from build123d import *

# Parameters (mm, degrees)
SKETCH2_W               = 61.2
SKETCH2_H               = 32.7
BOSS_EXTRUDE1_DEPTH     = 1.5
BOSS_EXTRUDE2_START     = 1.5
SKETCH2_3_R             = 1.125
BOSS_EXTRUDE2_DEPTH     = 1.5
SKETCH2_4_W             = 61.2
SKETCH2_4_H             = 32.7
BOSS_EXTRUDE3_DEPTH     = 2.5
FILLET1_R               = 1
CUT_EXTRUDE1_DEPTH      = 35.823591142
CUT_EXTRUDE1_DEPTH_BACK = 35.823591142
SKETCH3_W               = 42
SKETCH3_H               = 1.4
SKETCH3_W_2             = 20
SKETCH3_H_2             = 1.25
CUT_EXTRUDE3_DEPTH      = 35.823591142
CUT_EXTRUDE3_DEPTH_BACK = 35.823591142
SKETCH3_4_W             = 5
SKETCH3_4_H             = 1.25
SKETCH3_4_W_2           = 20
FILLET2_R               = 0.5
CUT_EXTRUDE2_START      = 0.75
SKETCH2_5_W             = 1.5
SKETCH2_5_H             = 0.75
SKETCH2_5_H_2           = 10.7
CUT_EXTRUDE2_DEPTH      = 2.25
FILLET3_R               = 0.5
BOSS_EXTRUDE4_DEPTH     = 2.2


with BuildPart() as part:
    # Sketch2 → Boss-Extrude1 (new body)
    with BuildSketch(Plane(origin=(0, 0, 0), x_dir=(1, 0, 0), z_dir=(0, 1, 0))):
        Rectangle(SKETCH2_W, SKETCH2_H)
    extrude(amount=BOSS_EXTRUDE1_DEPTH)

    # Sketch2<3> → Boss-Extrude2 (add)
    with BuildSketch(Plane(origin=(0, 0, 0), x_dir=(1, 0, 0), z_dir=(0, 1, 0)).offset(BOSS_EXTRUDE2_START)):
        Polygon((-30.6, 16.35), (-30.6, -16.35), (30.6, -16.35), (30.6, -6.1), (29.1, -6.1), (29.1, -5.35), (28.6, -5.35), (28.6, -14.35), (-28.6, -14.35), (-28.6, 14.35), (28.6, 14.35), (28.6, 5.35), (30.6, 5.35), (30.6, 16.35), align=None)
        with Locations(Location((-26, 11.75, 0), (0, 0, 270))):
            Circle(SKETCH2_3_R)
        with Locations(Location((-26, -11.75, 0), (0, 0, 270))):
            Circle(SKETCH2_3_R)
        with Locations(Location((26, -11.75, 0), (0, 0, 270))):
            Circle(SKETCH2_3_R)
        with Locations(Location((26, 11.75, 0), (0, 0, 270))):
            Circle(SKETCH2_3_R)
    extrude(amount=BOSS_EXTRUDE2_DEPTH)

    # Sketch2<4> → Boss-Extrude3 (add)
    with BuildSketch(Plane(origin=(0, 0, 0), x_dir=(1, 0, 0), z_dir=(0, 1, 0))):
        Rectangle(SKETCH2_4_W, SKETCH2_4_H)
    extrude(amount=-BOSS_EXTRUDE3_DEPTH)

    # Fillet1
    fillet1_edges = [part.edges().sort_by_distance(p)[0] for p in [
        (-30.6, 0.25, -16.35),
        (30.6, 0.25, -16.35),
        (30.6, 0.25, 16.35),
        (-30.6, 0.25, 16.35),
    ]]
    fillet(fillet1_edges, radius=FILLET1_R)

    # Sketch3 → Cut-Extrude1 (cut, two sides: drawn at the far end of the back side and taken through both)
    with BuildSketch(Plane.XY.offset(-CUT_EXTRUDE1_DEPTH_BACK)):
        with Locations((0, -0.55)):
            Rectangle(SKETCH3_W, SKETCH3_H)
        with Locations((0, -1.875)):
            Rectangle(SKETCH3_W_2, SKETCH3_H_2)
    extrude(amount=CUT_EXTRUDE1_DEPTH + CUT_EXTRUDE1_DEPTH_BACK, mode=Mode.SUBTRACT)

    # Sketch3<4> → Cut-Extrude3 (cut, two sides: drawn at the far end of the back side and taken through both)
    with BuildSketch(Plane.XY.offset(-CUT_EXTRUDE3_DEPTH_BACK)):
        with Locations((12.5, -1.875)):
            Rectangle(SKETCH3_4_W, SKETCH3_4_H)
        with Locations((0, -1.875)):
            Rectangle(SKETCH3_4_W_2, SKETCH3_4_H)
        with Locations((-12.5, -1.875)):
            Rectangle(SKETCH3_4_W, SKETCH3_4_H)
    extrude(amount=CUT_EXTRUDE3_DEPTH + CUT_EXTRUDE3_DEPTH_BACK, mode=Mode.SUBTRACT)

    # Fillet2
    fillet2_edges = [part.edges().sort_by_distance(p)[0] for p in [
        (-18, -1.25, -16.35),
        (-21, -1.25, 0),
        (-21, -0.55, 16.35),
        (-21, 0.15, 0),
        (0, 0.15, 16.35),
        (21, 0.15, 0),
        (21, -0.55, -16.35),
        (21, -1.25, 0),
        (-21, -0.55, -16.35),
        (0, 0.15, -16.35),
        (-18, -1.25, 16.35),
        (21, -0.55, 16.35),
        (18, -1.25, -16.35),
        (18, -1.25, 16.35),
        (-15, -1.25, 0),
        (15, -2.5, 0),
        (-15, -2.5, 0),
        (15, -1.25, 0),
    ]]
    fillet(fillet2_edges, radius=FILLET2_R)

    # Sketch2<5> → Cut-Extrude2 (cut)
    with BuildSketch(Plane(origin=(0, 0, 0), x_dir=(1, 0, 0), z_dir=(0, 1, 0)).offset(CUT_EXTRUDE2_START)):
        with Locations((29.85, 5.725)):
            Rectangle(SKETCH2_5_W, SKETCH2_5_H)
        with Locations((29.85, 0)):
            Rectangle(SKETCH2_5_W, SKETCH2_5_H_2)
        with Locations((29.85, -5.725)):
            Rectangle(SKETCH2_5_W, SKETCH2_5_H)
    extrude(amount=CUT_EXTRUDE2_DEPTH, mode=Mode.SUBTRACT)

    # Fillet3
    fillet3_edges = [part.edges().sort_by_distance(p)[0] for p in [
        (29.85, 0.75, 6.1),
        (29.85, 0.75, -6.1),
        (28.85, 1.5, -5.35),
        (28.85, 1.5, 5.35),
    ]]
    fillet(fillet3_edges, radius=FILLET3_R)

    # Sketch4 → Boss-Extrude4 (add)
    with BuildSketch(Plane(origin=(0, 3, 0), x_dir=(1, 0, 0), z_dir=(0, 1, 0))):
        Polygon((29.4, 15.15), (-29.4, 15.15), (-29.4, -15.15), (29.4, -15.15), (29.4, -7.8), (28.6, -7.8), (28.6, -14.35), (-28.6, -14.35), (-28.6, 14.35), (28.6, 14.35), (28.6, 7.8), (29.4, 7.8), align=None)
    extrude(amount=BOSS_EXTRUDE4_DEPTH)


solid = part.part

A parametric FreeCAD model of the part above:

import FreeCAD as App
import Part
import Sketcher


def edges_at(feature, points):
    """Names of the edges that pass closest to the given points."""
    edges = feature.Shape.Edges
    near = lambda p: min(range(len(edges)), key=lambda i: edges[i].distToShape(Part.Vertex(*p))[0])
    return sorted({f"Edge{near(p) + 1}" for p in points})

doc = App.newDocument("Part")
body = doc.addObject("PartDesign::Body", "Body")

sketch1 = body.newObject("Sketcher::SketchObject", "Sketch")
sketch1.AttachmentSupport = (doc.getObject("XZ_Plane"), [""])
sketch1.MapMode = "FlatFace"
sketch1.addGeometry(Part.LineSegment(App.Vector(-31, -16, 0), App.Vector(-31, 16, 0)), False)
sketch1.addGeometry(Part.LineSegment(App.Vector(-31, 16, 0), App.Vector(31, 16, 0)), False)
sketch1.addGeometry(Part.LineSegment(App.Vector(31, 16, 0), App.Vector(31, -16, 0)), False)
sketch1.addGeometry(Part.LineSegment(App.Vector(31, -16, 0), App.Vector(-31, -16, 0)), False)
sketch1.addConstraint(Sketcher.Constraint("Coincident", 0, 2, 1, 1))
sketch1.addConstraint(Sketcher.Constraint("Coincident", 1, 2, 2, 1))
sketch1.addConstraint(Sketcher.Constraint("Coincident", 2, 2, 3, 1))
sketch1.addConstraint(Sketcher.Constraint("Coincident", 3, 2, 0, 1))
sketch1.addConstraint(Sketcher.Constraint("Vertical", 0))
sketch1.addConstraint(Sketcher.Constraint("Horizontal", 1))
sketch1.addConstraint(Sketcher.Constraint("Vertical", 2))
sketch1.addConstraint(Sketcher.Constraint("Horizontal", 3))
sketch1.addConstraint(Sketcher.Constraint("Symmetric", 0, 2, 2, 2, -1, 1))
sketch1.addConstraint(Sketcher.Constraint("DistanceX", 1, 1, 1, 2, 61.2))
sketch1.addConstraint(Sketcher.Constraint("DistanceY", 0, 1, 0, 2, 32.7))
pad1 = body.newObject("PartDesign::Pad", "Pad")
pad1.Profile = sketch1
pad1.Length = 1.5
pad1.Reversed = True

sketch2 = body.newObject("Sketcher::SketchObject", "Sketch001")
sketch2.AttachmentSupport = (doc.getObject("XZ_Plane"), [""])
sketch2.MapMode = "FlatFace"
sketch2.AttachmentOffset = App.Placement(App.Vector(0, 0, -1.5), App.Rotation())
sketch2.addGeometry(Part.LineSegment(App.Vector(-30.6, -16.4, 0), App.Vector(-30.6, 16.4, 0)), False)
sketch2.addGeometry(Part.LineSegment(App.Vector(-30.6, 16.4, 0), App.Vector(30.6, 16.4, 0)), False)
sketch2.addGeometry(Part.LineSegment(App.Vector(30.6, 16.4, 0), App.Vector(30.6, 6.1, 0)), False)
sketch2.addGeometry(Part.LineSegment(App.Vector(30.6, 6.1, 0), App.Vector(29.1, 6.1, 0)), False)
sketch2.addGeometry(Part.LineSegment(App.Vector(29.1, 6.1, 0), App.Vector(29.1, 5.3, 0)), False)
sketch2.addGeometry(Part.LineSegment(App.Vector(29.1, 5.3, 0), App.Vector(28.6, 5.3, 0)), False)
sketch2.addGeometry(Part.LineSegment(App.Vector(28.6, 5.3, 0), App.Vector(28.6, 14.3, 0)), False)
sketch2.addGeometry(Part.LineSegment(App.Vector(28.6, 14.3, 0), App.Vector(-28.6, 14.3, 0)), False)
sketch2.addGeometry(Part.LineSegment(App.Vector(-28.6, 14.3, 0), App.Vector(-28.6, -14.3, 0)), False)
sketch2.addGeometry(Part.LineSegment(App.Vector(-28.6, -14.3, 0), App.Vector(28.6, -14.3, 0)), False)
sketch2.addGeometry(Part.LineSegment(App.Vector(28.6, -14.3, 0), App.Vector(28.6, -5.3, 0)), False)
sketch2.addGeometry(Part.LineSegment(App.Vector(28.6, -5.3, 0), App.Vector(30.6, -5.3, 0)), False)
sketch2.addGeometry(Part.LineSegment(App.Vector(30.6, -5.3, 0), App.Vector(30.6, -16.4, 0)), False)
sketch2.addGeometry(Part.LineSegment(App.Vector(30.6, -16.4, 0), App.Vector(-30.6, -16.4, 0)), False)
sketch2.addGeometry(Part.Circle(App.Vector(-26, -11.8, 0), App.Vector(0, 0, 1), 1.1), False)
sketch2.addGeometry(Part.Circle(App.Vector(-26, 11.8, 0), App.Vector(0, 0, 1), 1.1), False)
sketch2.addGeometry(Part.Circle(App.Vector(26, 11.8, 0), App.Vector(0, 0, 1), 1.1), False)
sketch2.addGeometry(Part.Circle(App.Vector(26, -11.8, 0), App.Vector(0, 0, 1), 1.1), False)
sketch2.addConstraint(Sketcher.Constraint("Coincident", 0, 2, 1, 1))
sketch2.addConstraint(Sketcher.Constraint("Coincident", 1, 2, 2, 1))
sketch2.addConstraint(Sketcher.Constraint("Coincident", 2, 2, 3, 1))
sketch2.addConstraint(Sketcher.Constraint("Coincident", 3, 2, 4, 1))
sketch2.addConstraint(Sketcher.Constraint("Coincident", 4, 2, 5, 1))
sketch2.addConstraint(Sketcher.Constraint("Coincident", 5, 2, 6, 1))
sketch2.addConstraint(Sketcher.Constraint("Coincident", 6, 2, 7, 1))
sketch2.addConstraint(Sketcher.Constraint("Coincident", 7, 2, 8, 1))
sketch2.addConstraint(Sketcher.Constraint("Coincident", 8, 2, 9, 1))
sketch2.addConstraint(Sketcher.Constraint("Coincident", 9, 2, 10, 1))
sketch2.addConstraint(Sketcher.Constraint("Coincident", 10, 2, 11, 1))
sketch2.addConstraint(Sketcher.Constraint("Coincident", 11, 2, 12, 1))
sketch2.addConstraint(Sketcher.Constraint("Coincident", 12, 2, 13, 1))
sketch2.addConstraint(Sketcher.Constraint("Coincident", 13, 2, 0, 1))
sketch2.addConstraint(Sketcher.Constraint("Vertical", 0))
sketch2.addConstraint(Sketcher.Constraint("Horizontal", 1))
sketch2.addConstraint(Sketcher.Constraint("Vertical", 2))
sketch2.addConstraint(Sketcher.Constraint("Horizontal", 3))
sketch2.addConstraint(Sketcher.Constraint("Vertical", 4))
sketch2.addConstraint(Sketcher.Constraint("Horizontal", 5))
sketch2.addConstraint(Sketcher.Constraint("Vertical", 6))
sketch2.addConstraint(Sketcher.Constraint("Horizontal", 7))
sketch2.addConstraint(Sketcher.Constraint("Vertical", 8))
sketch2.addConstraint(Sketcher.Constraint("Horizontal", 9))
sketch2.addConstraint(Sketcher.Constraint("Vertical", 10))
sketch2.addConstraint(Sketcher.Constraint("Horizontal", 11))
sketch2.addConstraint(Sketcher.Constraint("Vertical", 12))
sketch2.addConstraint(Sketcher.Constraint("Horizontal", 13))
sketch2.addConstraint(Sketcher.Constraint("Equal", 14, 15))
sketch2.addConstraint(Sketcher.Constraint("Equal", 15, 16))
sketch2.addConstraint(Sketcher.Constraint("Equal", 16, 17))
sketch2.addConstraint(Sketcher.Constraint("Symmetric", 14, 3, 16, 3, -1, 1))
sketch2.addConstraint(Sketcher.Constraint("Symmetric", 15, 3, 17, 3, -1, 1))
sketch2.addConstraint(Sketcher.Constraint("Symmetric", 6, 2, 8, 2, -1, 1))
sketch2.addConstraint(Sketcher.Constraint("Symmetric", 0, 2, 12, 2, -1, 1))
sketch2.addConstraint(Sketcher.Constraint("Symmetric", 15, 3, 16, 3, -2))
sketch2.addConstraint(Sketcher.Constraint("Symmetric", 5, 2, 10, 2, -1))
sketch2.addConstraint(Sketcher.Constraint("Vertical", 2, 2, 11, 2))
sketch2.addConstraint(Sketcher.Constraint("Diameter", 14, 2.25))
sketch2.addConstraint(Sketcher.Constraint("DistanceX", 11, 1, 11, 2, 2.0))
sketch2.addConstraint(Sketcher.Constraint("DistanceY", 6, 1, 6, 2, 9.0))
sketch2.addConstraint(Sketcher.Constraint("DistanceY", 12, 2, 12, 1, 11.0))
sketch2.addConstraint(Sketcher.Constraint("DistanceX", 1, 1, 1, 2, 61.2))
sketch2.addConstraint(Sketcher.Constraint("DistanceX", 3, 2, 3, 1, 1.5))
sketch2.addConstraint(Sketcher.Constraint("DistanceY", 0, 1, 0, 2, 32.7))
sketch2.addConstraint(Sketcher.Constraint("DistanceX", 14, 3, -1, 1, 26.0))
sketch2.addConstraint(Sketcher.Constraint("DistanceY", 2, 2, 2, 1, 10.25))
sketch2.addConstraint(Sketcher.Constraint("DistanceY", 14, 3, 15, 3, 23.5))
pad2 = body.newObject("PartDesign::Pad", "Pad001")
pad2.Profile = sketch2
pad2.Length = 1.5
pad2.Reversed = True

sketch3 = body.newObject("Sketcher::SketchObject", "Sketch002")
sketch3.AttachmentSupport = (doc.getObject("XZ_Plane"), [""])
sketch3.MapMode = "FlatFace"
sketch3.addGeometry(Part.LineSegment(App.Vector(-31, -16, 0), App.Vector(-31, 16, 0)), False)
sketch3.addGeometry(Part.LineSegment(App.Vector(-31, 16, 0), App.Vector(31, 16, 0)), False)
sketch3.addGeometry(Part.LineSegment(App.Vector(31, 16, 0), App.Vector(31, -16, 0)), False)
sketch3.addGeometry(Part.LineSegment(App.Vector(31, -16, 0), App.Vector(-31, -16, 0)), False)
sketch3.addConstraint(Sketcher.Constraint("Coincident", 0, 2, 1, 1))
sketch3.addConstraint(Sketcher.Constraint("Coincident", 1, 2, 2, 1))
sketch3.addConstraint(Sketcher.Constraint("Coincident", 2, 2, 3, 1))
sketch3.addConstraint(Sketcher.Constraint("Coincident", 3, 2, 0, 1))
sketch3.addConstraint(Sketcher.Constraint("Vertical", 0))
sketch3.addConstraint(Sketcher.Constraint("Horizontal", 1))
sketch3.addConstraint(Sketcher.Constraint("Vertical", 2))
sketch3.addConstraint(Sketcher.Constraint("Horizontal", 3))
sketch3.addConstraint(Sketcher.Constraint("Symmetric", 0, 2, 2, 2, -1, 1))
sketch3.addConstraint(Sketcher.Constraint("DistanceX", 1, 1, 1, 2, 61.2))
sketch3.addConstraint(Sketcher.Constraint("DistanceY", 0, 1, 0, 2, 32.7))
pad3 = body.newObject("PartDesign::Pad", "Pad002")
pad3.Profile = sketch3
pad3.Length = 2.5
doc.recompute()

fillet = body.newObject("PartDesign::Fillet", "Fillet")
fillet.Base = (pad3, edges_at(pad3, [
    (-30.6, 0.25, -16.35),
    (30.6, 0.25, -16.35),
    (30.6, 0.25, 16.35),
    (-30.6, 0.25, 16.35),
]))
fillet.Radius = 1

sketch4 = body.newObject("Sketcher::SketchObject", "Sketch003")
sketch4.AttachmentSupport = (doc.getObject("XY_Plane"), [""])
sketch4.MapMode = "FlatFace"
sketch4.addGeometry(Part.LineSegment(App.Vector(-21, 0.1, 0), App.Vector(-21, -1.2, 0)), False)
sketch4.addGeometry(Part.LineSegment(App.Vector(-21, -1.2, 0), App.Vector(-10, -1.2, 0)), False)
sketch4.addGeometry(Part.LineSegment(App.Vector(-10, -1.2, 0), App.Vector(-10, -2.5, 0)), False)
sketch4.addGeometry(Part.LineSegment(App.Vector(-10, -2.5, 0), App.Vector(10, -2.5, 0)), False)
sketch4.addGeometry(Part.LineSegment(App.Vector(10, -2.5, 0), App.Vector(10, -1.2, 0)), False)
sketch4.addGeometry(Part.LineSegment(App.Vector(10, -1.2, 0), App.Vector(21, -1.2, 0)), False)
sketch4.addGeometry(Part.LineSegment(App.Vector(21, -1.2, 0), App.Vector(21, 0.1, 0)), False)
sketch4.addGeometry(Part.LineSegment(App.Vector(21, 0.1, 0), App.Vector(-21, 0.1, 0)), False)
sketch4.addConstraint(Sketcher.Constraint("Coincident", 0, 2, 1, 1))
sketch4.addConstraint(Sketcher.Constraint("Coincident", 1, 2, 2, 1))
sketch4.addConstraint(Sketcher.Constraint("Coincident", 2, 2, 3, 1))
sketch4.addConstraint(Sketcher.Constraint("Coincident", 3, 2, 4, 1))
sketch4.addConstraint(Sketcher.Constraint("Coincident", 4, 2, 5, 1))
sketch4.addConstraint(Sketcher.Constraint("Coincident", 5, 2, 6, 1))
sketch4.addConstraint(Sketcher.Constraint("Coincident", 6, 2, 7, 1))
sketch4.addConstraint(Sketcher.Constraint("Coincident", 7, 2, 0, 1))
sketch4.addConstraint(Sketcher.Constraint("Vertical", 0))
sketch4.addConstraint(Sketcher.Constraint("Horizontal", 1))
sketch4.addConstraint(Sketcher.Constraint("Vertical", 2))
sketch4.addConstraint(Sketcher.Constraint("Horizontal", 3))
sketch4.addConstraint(Sketcher.Constraint("Vertical", 4))
sketch4.addConstraint(Sketcher.Constraint("Horizontal", 5))
sketch4.addConstraint(Sketcher.Constraint("Vertical", 6))
sketch4.addConstraint(Sketcher.Constraint("Horizontal", 7))
sketch4.addConstraint(Sketcher.Constraint("Symmetric", 1, 2, 4, 2, -2))
sketch4.addConstraint(Sketcher.Constraint("Equal", 1, 5))
sketch4.addConstraint(Sketcher.Constraint("DistanceX", 1, 1, 1, 2, 11.0))
sketch4.addConstraint(Sketcher.Constraint("DistanceX", 3, 1, 3, 2, 20.0))
sketch4.addConstraint(Sketcher.Constraint("DistanceY", 0, 2, 0, 1, 1.4))
sketch4.addConstraint(Sketcher.Constraint("DistanceY", 2, 2, 2, 1, 1.25))
sketch4.addConstraint(Sketcher.Constraint("DistanceY", 2, 2, -1, 1, 2.5))
pocket1 = body.newObject("PartDesign::Pocket", "Pocket")
pocket1.Profile = sketch4
pocket1.Type = "ThroughAll"
pocket1.Midplane = True

sketch5 = body.newObject("Sketcher::SketchObject", "Sketch004")
sketch5.AttachmentSupport = (doc.getObject("XY_Plane"), [""])
sketch5.MapMode = "FlatFace"
sketch5.addGeometry(Part.LineSegment(App.Vector(15, -2.5, 0), App.Vector(15, -1.2, 0)), False)
sketch5.addGeometry(Part.LineSegment(App.Vector(15, -1.2, 0), App.Vector(-15, -1.2, 0)), False)
sketch5.addGeometry(Part.LineSegment(App.Vector(-15, -1.2, 0), App.Vector(-15, -2.5, 0)), False)
sketch5.addGeometry(Part.LineSegment(App.Vector(-15, -2.5, 0), App.Vector(15, -2.5, 0)), False)
sketch5.addConstraint(Sketcher.Constraint("Coincident", 0, 2, 1, 1))
sketch5.addConstraint(Sketcher.Constraint("Coincident", 1, 2, 2, 1))
sketch5.addConstraint(Sketcher.Constraint("Coincident", 2, 2, 3, 1))
sketch5.addConstraint(Sketcher.Constraint("Coincident", 3, 2, 0, 1))
sketch5.addConstraint(Sketcher.Constraint("Vertical", 0))
sketch5.addConstraint(Sketcher.Constraint("Horizontal", 1))
sketch5.addConstraint(Sketcher.Constraint("Vertical", 2))
sketch5.addConstraint(Sketcher.Constraint("Horizontal", 3))
sketch5.addConstraint(Sketcher.Constraint("DistanceX", 1, 2, 1, 1, 30.0))
sketch5.addConstraint(Sketcher.Constraint("DistanceX", -1, 1, 0, 2, 15.0))
sketch5.addConstraint(Sketcher.Constraint("DistanceY", 0, 1, 0, 2, 1.25))
sketch5.addConstraint(Sketcher.Constraint("DistanceY", 2, 2, -1, 1, 2.5))
pocket2 = body.newObject("PartDesign::Pocket", "Pocket001")
pocket2.Profile = sketch5
pocket2.Type = "ThroughAll"
pocket2.Midplane = True
doc.recompute()

fillet2 = body.newObject("PartDesign::Fillet", "Fillet001")
fillet2.Base = (pocket2, edges_at(pocket2, [
    (-18, -1.25, -16.35),
    (-21, -1.25, 0),
    (-21, -0.55, 16.35),
    (-21, 0.15, 0),
    (0, 0.15, 16.35),
    (21, 0.15, 0),
    (21, -0.55, -16.35),
    (21, -1.25, 0),
    (-21, -0.55, -16.35),
    (0, 0.15, -16.35),
    (-18, -1.25, 16.35),
    (21, -0.55, 16.35),
    (18, -1.25, -16.35),
    (18, -1.25, 16.35),
    (-15, -1.25, 0),
    (15, -2.5, 0),
    (-15, -2.5, 0),
    (15, -1.25, 0),
]))
fillet2.Radius = 0.5

sketch6 = body.newObject("Sketcher::SketchObject", "Sketch005")
sketch6.AttachmentSupport = (doc.getObject("XZ_Plane"), [""])
sketch6.MapMode = "FlatFace"
sketch6.AttachmentOffset = App.Placement(App.Vector(0, 0, -0.75), App.Rotation())
sketch6.addGeometry(Part.LineSegment(App.Vector(29.1, -6.1, 0), App.Vector(29.1, 6.1, 0)), False)
sketch6.addGeometry(Part.LineSegment(App.Vector(29.1, 6.1, 0), App.Vector(30.6, 6.1, 0)), False)
sketch6.addGeometry(Part.LineSegment(App.Vector(30.6, 6.1, 0), App.Vector(30.6, -6.1, 0)), False)
sketch6.addGeometry(Part.LineSegment(App.Vector(30.6, -6.1, 0), App.Vector(29.1, -6.1, 0)), False)
sketch6.addConstraint(Sketcher.Constraint("Coincident", 0, 2, 1, 1))
sketch6.addConstraint(Sketcher.Constraint("Coincident", 1, 2, 2, 1))
sketch6.addConstraint(Sketcher.Constraint("Coincident", 2, 2, 3, 1))
sketch6.addConstraint(Sketcher.Constraint("Coincident", 3, 2, 0, 1))
sketch6.addConstraint(Sketcher.Constraint("Vertical", 0))
sketch6.addConstraint(Sketcher.Constraint("Horizontal", 1))
sketch6.addConstraint(Sketcher.Constraint("Vertical", 2))
sketch6.addConstraint(Sketcher.Constraint("Horizontal", 3))
sketch6.addConstraint(Sketcher.Constraint("DistanceX", 1, 1, 1, 2, 1.5))
sketch6.addConstraint(Sketcher.Constraint("DistanceY", 0, 1, 0, 2, 12.2))
sketch6.addConstraint(Sketcher.Constraint("DistanceX", -1, 1, 0, 2, 29.1))
sketch6.addConstraint(Sketcher.Constraint("DistanceY", -1, 1, 0, 2, 6.1))
pocket3 = body.newObject("PartDesign::Pocket", "Pocket002")
pocket3.Profile = sketch6
pocket3.Length = 2.25
doc.recompute()

fillet3 = body.newObject("PartDesign::Fillet", "Fillet002")
fillet3.Base = (pocket3, edges_at(pocket3, [
    (29.85, 0.75, 6.1),
    (29.85, 0.75, -6.1),
    (28.85, 1.5, -5.35),
    (28.85, 1.5, 5.35),
]))
fillet3.Radius = 0.5

sketch7 = body.newObject("Sketcher::SketchObject", "Sketch006")
sketch7.AttachmentSupport = (doc.getObject("XZ_Plane"), [""])
sketch7.MapMode = "FlatFace"
sketch7.AttachmentOffset = App.Placement(App.Vector(0, 0, -3), App.Rotation())
sketch7.addGeometry(Part.LineSegment(App.Vector(29.4, -15.2, 0), App.Vector(-29.4, -15.2, 0)), False)
sketch7.addGeometry(Part.LineSegment(App.Vector(-29.4, -15.2, 0), App.Vector(-29.4, 15.2, 0)), False)
sketch7.addGeometry(Part.LineSegment(App.Vector(-29.4, 15.2, 0), App.Vector(29.4, 15.2, 0)), False)
sketch7.addGeometry(Part.LineSegment(App.Vector(29.4, 15.2, 0), App.Vector(29.4, 7.8, 0)), False)
sketch7.addGeometry(Part.LineSegment(App.Vector(29.4, 7.8, 0), App.Vector(28.6, 7.8, 0)), False)
sketch7.addGeometry(Part.LineSegment(App.Vector(28.6, 7.8, 0), App.Vector(28.6, 14.3, 0)), False)
sketch7.addGeometry(Part.LineSegment(App.Vector(28.6, 14.3, 0), App.Vector(-28.6, 14.3, 0)), False)
sketch7.addGeometry(Part.LineSegment(App.Vector(-28.6, 14.3, 0), App.Vector(-28.6, -14.3, 0)), False)
sketch7.addGeometry(Part.LineSegment(App.Vector(-28.6, -14.3, 0), App.Vector(28.6, -14.3, 0)), False)
sketch7.addGeometry(Part.LineSegment(App.Vector(28.6, -14.3, 0), App.Vector(28.6, -7.8, 0)), False)
sketch7.addGeometry(Part.LineSegment(App.Vector(28.6, -7.8, 0), App.Vector(29.4, -7.8, 0)), False)
sketch7.addGeometry(Part.LineSegment(App.Vector(29.4, -7.8, 0), App.Vector(29.4, -15.2, 0)), False)
sketch7.addConstraint(Sketcher.Constraint("Coincident", 0, 2, 1, 1))
sketch7.addConstraint(Sketcher.Constraint("Coincident", 1, 2, 2, 1))
sketch7.addConstraint(Sketcher.Constraint("Coincident", 2, 2, 3, 1))
sketch7.addConstraint(Sketcher.Constraint("Coincident", 3, 2, 4, 1))
sketch7.addConstraint(Sketcher.Constraint("Coincident", 4, 2, 5, 1))
sketch7.addConstraint(Sketcher.Constraint("Coincident", 5, 2, 6, 1))
sketch7.addConstraint(Sketcher.Constraint("Coincident", 6, 2, 7, 1))
sketch7.addConstraint(Sketcher.Constraint("Coincident", 7, 2, 8, 1))
sketch7.addConstraint(Sketcher.Constraint("Coincident", 8, 2, 9, 1))
sketch7.addConstraint(Sketcher.Constraint("Coincident", 9, 2, 10, 1))
sketch7.addConstraint(Sketcher.Constraint("Coincident", 10, 2, 11, 1))
sketch7.addConstraint(Sketcher.Constraint("Coincident", 11, 2, 0, 1))
sketch7.addConstraint(Sketcher.Constraint("Horizontal", 0))
sketch7.addConstraint(Sketcher.Constraint("Vertical", 1))
sketch7.addConstraint(Sketcher.Constraint("Horizontal", 2))
sketch7.addConstraint(Sketcher.Constraint("Vertical", 3))
sketch7.addConstraint(Sketcher.Constraint("Horizontal", 4))
sketch7.addConstraint(Sketcher.Constraint("Vertical", 5))
sketch7.addConstraint(Sketcher.Constraint("Horizontal", 6))
sketch7.addConstraint(Sketcher.Constraint("Vertical", 7))
sketch7.addConstraint(Sketcher.Constraint("Horizontal", 8))
sketch7.addConstraint(Sketcher.Constraint("Vertical", 9))
sketch7.addConstraint(Sketcher.Constraint("Horizontal", 10))
sketch7.addConstraint(Sketcher.Constraint("Vertical", 11))
sketch7.addConstraint(Sketcher.Constraint("Symmetric", 0, 2, 2, 2, -1, 1))
sketch7.addConstraint(Sketcher.Constraint("Symmetric", 5, 2, 7, 2, -1, 1))
sketch7.addConstraint(Sketcher.Constraint("Symmetric", 4, 2, 9, 2, -1))
sketch7.addConstraint(Sketcher.Constraint("Vertical", 3, 2, 10, 2))
sketch7.addConstraint(Sketcher.Constraint("DistanceX", 0, 2, 0, 1, 58.8))
sketch7.addConstraint(Sketcher.Constraint("DistanceX", 4, 2, 4, 1, 0.8))
sketch7.addConstraint(Sketcher.Constraint("DistanceY", 1, 1, 1, 2, 30.3))
sketch7.addConstraint(Sketcher.Constraint("DistanceY", 7, 2, 7, 1, 28.7))
sketch7.addConstraint(Sketcher.Constraint("DistanceY", 3, 2, 3, 1, 7.35))
pad4 = body.newObject("PartDesign::Pad", "Pad003")
pad4.Profile = sketch7
pad4.Length = 2.2
pad4.Reversed = True

doc.recompute()
